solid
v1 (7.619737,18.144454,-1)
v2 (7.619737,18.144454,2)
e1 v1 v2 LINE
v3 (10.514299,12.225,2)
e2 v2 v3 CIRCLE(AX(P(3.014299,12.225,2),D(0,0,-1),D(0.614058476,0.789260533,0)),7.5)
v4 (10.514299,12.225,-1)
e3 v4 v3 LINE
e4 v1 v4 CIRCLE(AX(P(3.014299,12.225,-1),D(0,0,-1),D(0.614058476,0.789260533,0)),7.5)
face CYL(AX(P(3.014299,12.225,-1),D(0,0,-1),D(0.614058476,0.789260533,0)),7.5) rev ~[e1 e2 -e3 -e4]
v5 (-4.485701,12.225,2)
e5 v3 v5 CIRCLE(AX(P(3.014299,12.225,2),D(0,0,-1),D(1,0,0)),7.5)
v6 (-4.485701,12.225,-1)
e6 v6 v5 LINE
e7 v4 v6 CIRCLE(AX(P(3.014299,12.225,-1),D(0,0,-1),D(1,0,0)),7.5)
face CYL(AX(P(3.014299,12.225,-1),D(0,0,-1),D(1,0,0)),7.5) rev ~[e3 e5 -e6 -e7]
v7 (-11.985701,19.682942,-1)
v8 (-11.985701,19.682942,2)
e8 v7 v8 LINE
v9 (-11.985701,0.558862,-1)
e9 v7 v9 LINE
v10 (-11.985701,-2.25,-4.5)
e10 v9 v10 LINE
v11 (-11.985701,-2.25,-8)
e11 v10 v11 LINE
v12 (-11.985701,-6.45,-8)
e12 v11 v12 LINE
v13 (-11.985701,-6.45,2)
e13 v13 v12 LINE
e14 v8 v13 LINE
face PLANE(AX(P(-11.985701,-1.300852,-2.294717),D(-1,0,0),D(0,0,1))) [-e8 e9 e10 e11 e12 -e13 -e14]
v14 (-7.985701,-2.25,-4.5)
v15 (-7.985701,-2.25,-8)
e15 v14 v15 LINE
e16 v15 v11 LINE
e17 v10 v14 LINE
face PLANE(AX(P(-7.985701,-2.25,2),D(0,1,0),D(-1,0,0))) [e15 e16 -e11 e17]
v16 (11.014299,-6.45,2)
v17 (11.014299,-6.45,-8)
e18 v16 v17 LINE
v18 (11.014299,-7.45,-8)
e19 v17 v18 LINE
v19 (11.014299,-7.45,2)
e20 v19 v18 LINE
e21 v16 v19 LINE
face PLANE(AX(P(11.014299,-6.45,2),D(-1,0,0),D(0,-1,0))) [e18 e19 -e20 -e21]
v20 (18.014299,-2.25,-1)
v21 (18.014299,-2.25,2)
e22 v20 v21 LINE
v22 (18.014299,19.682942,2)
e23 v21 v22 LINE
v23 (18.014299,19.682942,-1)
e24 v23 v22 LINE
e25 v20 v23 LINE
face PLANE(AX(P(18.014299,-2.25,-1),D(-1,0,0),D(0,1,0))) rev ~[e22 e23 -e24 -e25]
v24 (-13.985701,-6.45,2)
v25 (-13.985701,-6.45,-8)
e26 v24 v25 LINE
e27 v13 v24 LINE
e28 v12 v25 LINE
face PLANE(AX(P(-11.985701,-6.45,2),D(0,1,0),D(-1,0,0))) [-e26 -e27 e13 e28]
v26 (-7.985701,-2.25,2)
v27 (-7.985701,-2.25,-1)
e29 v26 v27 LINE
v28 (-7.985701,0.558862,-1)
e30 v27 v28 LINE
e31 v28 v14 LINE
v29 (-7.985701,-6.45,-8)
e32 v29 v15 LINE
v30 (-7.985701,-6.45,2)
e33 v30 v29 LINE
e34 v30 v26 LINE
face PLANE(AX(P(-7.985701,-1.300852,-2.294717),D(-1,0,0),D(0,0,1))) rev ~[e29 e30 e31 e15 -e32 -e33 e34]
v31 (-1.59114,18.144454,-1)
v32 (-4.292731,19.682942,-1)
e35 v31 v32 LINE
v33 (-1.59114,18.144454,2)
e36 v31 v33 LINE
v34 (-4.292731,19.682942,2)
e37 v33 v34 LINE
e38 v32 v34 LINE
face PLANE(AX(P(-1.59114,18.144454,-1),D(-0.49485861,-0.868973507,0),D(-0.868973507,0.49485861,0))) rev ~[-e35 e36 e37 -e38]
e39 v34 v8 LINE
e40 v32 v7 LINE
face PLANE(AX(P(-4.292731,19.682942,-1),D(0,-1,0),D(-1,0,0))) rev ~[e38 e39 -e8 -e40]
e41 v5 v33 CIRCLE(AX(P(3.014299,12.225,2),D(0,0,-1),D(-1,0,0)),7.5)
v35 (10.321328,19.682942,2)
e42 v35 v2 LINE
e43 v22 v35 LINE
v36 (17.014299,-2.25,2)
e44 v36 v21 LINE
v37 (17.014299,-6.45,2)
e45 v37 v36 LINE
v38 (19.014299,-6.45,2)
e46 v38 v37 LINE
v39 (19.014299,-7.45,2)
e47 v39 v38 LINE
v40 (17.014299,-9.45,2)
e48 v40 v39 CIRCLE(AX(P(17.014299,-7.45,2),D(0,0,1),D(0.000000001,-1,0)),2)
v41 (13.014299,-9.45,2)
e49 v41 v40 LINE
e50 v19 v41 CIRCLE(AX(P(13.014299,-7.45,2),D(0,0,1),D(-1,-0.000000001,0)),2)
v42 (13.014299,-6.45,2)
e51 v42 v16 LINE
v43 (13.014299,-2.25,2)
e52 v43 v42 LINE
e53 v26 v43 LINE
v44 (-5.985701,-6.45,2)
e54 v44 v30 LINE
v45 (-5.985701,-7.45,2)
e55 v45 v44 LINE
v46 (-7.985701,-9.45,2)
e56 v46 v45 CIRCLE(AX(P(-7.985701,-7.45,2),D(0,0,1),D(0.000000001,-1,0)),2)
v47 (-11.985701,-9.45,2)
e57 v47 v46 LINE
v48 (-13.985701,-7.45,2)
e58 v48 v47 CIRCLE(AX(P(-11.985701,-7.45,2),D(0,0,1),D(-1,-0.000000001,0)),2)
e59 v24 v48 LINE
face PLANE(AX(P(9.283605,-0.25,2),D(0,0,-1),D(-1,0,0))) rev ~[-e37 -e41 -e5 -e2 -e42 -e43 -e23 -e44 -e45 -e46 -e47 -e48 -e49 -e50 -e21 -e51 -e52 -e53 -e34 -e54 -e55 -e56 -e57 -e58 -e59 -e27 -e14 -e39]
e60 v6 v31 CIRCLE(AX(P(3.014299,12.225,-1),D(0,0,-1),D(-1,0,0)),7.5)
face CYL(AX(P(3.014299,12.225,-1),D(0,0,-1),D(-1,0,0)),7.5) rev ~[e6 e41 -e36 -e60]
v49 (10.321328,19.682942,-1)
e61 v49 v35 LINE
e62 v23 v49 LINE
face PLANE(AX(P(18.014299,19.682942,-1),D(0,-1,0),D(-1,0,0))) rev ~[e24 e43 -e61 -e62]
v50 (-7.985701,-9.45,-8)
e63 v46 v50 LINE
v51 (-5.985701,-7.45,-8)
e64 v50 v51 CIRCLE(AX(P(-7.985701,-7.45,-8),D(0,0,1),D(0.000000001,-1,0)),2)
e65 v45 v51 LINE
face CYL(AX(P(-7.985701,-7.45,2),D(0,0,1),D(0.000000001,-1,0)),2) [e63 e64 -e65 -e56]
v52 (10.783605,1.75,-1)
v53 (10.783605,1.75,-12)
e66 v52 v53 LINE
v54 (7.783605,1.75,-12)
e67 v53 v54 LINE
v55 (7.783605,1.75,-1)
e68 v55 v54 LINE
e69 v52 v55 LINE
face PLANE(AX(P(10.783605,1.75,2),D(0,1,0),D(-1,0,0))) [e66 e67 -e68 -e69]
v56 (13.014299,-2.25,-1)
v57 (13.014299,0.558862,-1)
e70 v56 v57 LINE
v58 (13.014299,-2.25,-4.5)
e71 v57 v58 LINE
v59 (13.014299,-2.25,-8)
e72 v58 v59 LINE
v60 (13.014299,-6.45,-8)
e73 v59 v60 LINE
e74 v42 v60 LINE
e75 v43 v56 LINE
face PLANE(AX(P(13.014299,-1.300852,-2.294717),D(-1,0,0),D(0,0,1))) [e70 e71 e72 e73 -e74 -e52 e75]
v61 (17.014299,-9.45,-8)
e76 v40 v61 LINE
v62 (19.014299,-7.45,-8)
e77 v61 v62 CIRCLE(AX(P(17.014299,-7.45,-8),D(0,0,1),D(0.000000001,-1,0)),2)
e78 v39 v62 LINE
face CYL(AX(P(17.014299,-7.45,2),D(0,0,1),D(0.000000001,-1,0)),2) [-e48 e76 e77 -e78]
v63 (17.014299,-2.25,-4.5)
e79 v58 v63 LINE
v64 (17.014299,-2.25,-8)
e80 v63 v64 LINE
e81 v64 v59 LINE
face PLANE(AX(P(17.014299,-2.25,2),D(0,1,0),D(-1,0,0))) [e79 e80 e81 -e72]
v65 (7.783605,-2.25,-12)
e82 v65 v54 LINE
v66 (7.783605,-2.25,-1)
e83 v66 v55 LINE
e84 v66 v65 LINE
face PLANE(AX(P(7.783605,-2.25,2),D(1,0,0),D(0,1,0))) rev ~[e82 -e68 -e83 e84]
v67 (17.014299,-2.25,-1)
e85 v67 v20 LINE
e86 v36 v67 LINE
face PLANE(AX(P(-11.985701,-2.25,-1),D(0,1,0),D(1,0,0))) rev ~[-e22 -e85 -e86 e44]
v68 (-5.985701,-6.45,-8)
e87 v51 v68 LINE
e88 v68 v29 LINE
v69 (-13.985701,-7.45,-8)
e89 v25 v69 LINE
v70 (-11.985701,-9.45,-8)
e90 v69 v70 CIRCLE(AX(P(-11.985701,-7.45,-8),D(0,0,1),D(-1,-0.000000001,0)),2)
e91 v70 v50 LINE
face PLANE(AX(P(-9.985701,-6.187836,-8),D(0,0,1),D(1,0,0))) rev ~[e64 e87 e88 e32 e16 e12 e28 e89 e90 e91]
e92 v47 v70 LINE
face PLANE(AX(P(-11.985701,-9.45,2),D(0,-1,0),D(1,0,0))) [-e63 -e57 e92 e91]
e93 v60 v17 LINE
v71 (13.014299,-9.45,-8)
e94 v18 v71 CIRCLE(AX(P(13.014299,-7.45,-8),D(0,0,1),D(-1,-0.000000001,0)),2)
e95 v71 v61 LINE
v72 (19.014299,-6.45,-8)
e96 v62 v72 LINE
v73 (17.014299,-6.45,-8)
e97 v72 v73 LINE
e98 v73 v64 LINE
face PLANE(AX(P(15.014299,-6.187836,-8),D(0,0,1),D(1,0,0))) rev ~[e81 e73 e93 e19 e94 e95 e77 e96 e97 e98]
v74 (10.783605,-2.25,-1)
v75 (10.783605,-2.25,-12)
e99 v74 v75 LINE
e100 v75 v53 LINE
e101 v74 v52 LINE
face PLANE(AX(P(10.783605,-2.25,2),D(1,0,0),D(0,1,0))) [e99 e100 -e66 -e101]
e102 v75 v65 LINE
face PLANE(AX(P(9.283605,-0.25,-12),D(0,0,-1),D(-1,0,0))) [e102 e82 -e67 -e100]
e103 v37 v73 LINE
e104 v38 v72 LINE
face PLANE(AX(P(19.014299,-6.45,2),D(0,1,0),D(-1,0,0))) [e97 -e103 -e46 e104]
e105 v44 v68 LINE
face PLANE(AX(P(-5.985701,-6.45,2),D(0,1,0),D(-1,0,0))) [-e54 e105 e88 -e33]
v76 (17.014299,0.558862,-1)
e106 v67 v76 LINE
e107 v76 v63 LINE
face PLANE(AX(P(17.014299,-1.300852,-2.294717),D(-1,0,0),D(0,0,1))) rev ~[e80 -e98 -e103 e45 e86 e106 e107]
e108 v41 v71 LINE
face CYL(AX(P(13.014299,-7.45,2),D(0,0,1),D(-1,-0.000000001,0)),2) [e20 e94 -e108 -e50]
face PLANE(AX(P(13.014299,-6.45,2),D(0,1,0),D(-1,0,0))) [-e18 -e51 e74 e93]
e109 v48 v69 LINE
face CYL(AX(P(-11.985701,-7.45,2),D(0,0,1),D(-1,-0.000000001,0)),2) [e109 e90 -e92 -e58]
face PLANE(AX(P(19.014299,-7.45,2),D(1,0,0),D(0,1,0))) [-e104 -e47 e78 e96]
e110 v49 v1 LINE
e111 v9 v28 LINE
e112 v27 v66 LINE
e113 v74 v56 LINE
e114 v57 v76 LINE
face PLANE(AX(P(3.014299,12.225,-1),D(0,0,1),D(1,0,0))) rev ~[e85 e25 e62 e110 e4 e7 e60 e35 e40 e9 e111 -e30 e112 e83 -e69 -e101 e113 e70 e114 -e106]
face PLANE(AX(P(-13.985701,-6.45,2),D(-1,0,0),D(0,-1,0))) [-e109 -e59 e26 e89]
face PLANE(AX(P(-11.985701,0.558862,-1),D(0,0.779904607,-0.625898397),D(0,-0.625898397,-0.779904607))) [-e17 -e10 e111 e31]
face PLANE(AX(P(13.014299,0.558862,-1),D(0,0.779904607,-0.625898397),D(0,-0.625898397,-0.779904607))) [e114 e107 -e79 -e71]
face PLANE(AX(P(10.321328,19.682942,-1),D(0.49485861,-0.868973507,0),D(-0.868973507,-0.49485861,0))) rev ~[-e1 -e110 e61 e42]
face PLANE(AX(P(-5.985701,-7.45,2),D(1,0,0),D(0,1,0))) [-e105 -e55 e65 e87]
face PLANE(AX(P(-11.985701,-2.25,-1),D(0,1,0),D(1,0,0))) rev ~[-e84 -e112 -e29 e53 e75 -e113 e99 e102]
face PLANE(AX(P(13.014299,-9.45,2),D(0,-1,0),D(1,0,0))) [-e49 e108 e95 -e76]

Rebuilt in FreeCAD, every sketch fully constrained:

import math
import FreeCAD as App
import Part
import Sketcher

doc = App.newDocument("Part")
params = doc.addObject("Spreadsheet::Sheet", "Params")
for row, (alias, value) in enumerate([
    ("sketch1_width", "30 mm"),
    ("sketch1_height", "28.95 mm"),
    ("pad1_length", "2 mm"),
    ("pad1_length2", "1 mm"),
    ("sketch2_radius", "2 mm"),
    ("sketch2_width", "4 mm"),
    ("sketch2_height", "1 mm"),
    ("sketch2_height2", "4.2 mm"),
    ("pad2_length", "10 mm"),
    ("linearpattern_pitch", "25 mm"),
    ("sketch3_width", "3 mm"),
    ("sketch3_height", "4 mm"),
    ("pad3_length", "14 mm"),
    ("sketch4_height", "3.5 mm"),
    ("pad4_length", "4 mm"),
    ("linearpattern2_pitch", "25 mm"),
    ("sketch5_radius", "7.5 mm"),
    ("pocket1_length", "10 mm"),
], start=1):
    params.set(f"A{row}", alias)
    params.set(f"B{row}", "=" + value)
    params.setAlias(f"B{row}", alias)

body = doc.addObject("PartDesign::Body", "Body")

sketch1 = doc.addObject("Sketcher::SketchObject", "Sketch")
body.addObject(sketch1)
sketch1.AttachmentSupport = (doc.XY_Plane, [""])
sketch1.MapMode = "FlatFace"
sketch1.addGeometry(Part.LineSegment(App.Vector(18.014299, 26.7, 0), App.Vector(-11.985701, 26.7, 0)), False)
sketch1.addGeometry(Part.LineSegment(App.Vector(-11.985701, 26.7, 0), App.Vector(-11.985701, -2.25, 0)), False)
sketch1.addGeometry(Part.LineSegment(App.Vector(-11.985701, -2.25, 0), App.Vector(18.014299, -2.25, 0)), False)
sketch1.addGeometry(Part.LineSegment(App.Vector(18.014299, -2.25, 0), App.Vector(18.014299, 26.7, 0)), False)
sketch1.addConstraint(Sketcher.Constraint("Coincident", 0, 2, 1, 1))
sketch1.addConstraint(Sketcher.Constraint("Coincident", 1, 2, 2, 1))
sketch1.addConstraint(Sketcher.Constraint("Coincident", 2, 2, 3, 1))
sketch1.addConstraint(Sketcher.Constraint("Coincident", 3, 2, 0, 1))
sketch1.addConstraint(Sketcher.Constraint("Horizontal", 0))
sketch1.addConstraint(Sketcher.Constraint("Vertical", 1))
sketch1.addConstraint(Sketcher.Constraint("Horizontal", 2))
sketch1.addConstraint(Sketcher.Constraint("Vertical", 3))
sketch1.addConstraint(Sketcher.Constraint("DistanceX", 0, 2, 0, 1, 30.0))
sketch1.addConstraint(Sketcher.Constraint("DistanceY", 1, 2, 1, 1, 28.95))
sketch1.addConstraint(Sketcher.Constraint("DistanceY", -1, 1, 0, 2, 26.7))
sketch1.addConstraint(Sketcher.Constraint("DistanceX", 0, 2, -1, 1, 11.985701))
sketch1.setExpression("Constraints[8]", "Params.sketch1_width")
sketch1.setExpression("Constraints[9]", "Params.sketch1_height")
pad1 = doc.addObject("PartDesign::Pad", "Pad")
body.addObject(pad1)
pad1.Profile = sketch1
pad1.Type = "TwoLengths"
pad1.setExpression("Length", "Params.pad1_length")
pad1.setExpression("Length2", "Params.pad1_length2")

sketch2 = doc.addObject("Sketcher::SketchObject", "Sketch001")
body.addObject(sketch2)
sketch2.AttachmentSupport = (doc.XY_Plane, [""])
sketch2.MapMode = "FlatFace"
sketch2.AttachmentOffset = App.Placement(App.Vector(0, 0, 2), App.Rotation())
sketch2.addGeometry(Part.LineSegment(App.Vector(-5.985701, -6.45, 0), App.Vector(-7.985701, -6.45, 0)), False)
sketch2.addGeometry(Part.LineSegment(App.Vector(-7.985701, -6.45, 0), App.Vector(-7.985701, -2.25, 0)), False)
sketch2.addGeometry(Part.LineSegment(App.Vector(-7.985701, -2.25, 0), App.Vector(-11.985701, -2.25, 0)), False)
sketch2.addGeometry(Part.LineSegment(App.Vector(-11.985701, -2.25, 0), App.Vector(-11.985701, -6.45, 0)), False)
sketch2.addGeometry(Part.LineSegment(App.Vector(-11.985701, -6.45, 0), App.Vector(-13.985701, -6.45, 0)), False)
sketch2.addGeometry(Part.LineSegment(App.Vector(-13.985701, -6.45, 0), App.Vector(-13.985701, -7.45, 0)), False)
sketch2.addGeometry(Part.ArcOfCircle(Part.Circle(App.Vector(-11.985701, -7.45, 0), App.Vector(0, 0, 1), 2), math.radians(-180), math.radians(-90)), False)
sketch2.addGeometry(Part.LineSegment(App.Vector(-11.985701, -9.45, 0), App.Vector(-7.985701, -9.45, 0)), False)
sketch2.addGeometry(Part.ArcOfCircle(Part.Circle(App.Vector(-7.985701, -7.45, 0), App.Vector(0, 0, 1), 2), math.radians(-90), math.radians(0)), False)
sketch2.addGeometry(Part.LineSegment(App.Vector(-5.985701, -7.45, 0), App.Vector(-5.985701, -6.45, 0)), False)
sketch2.addConstraint(Sketcher.Constraint("Coincident", 0, 2, 1, 1))
sketch2.addConstraint(Sketcher.Constraint("Coincident", 1, 2, 2, 1))
sketch2.addConstraint(Sketcher.Constraint("Coincident", 2, 2, 3, 1))
sketch2.addConstraint(Sketcher.Constraint("Coincident", 3, 2, 4, 1))
sketch2.addConstraint(Sketcher.Constraint("Coincident", 4, 2, 5, 1))
sketch2.addConstraint(Sketcher.Constraint("Tangent", 5, 2, 6, 1))
sketch2.addConstraint(Sketcher.Constraint("Tangent", 6, 2, 7, 1))
sketch2.addConstraint(Sketcher.Constraint("Tangent", 7, 2, 8, 1))
sketch2.addConstraint(Sketcher.Constraint("Tangent", 8, 2, 9, 1))
sketch2.addConstraint(Sketcher.Constraint("Coincident", 9, 2, 0, 1))
sketch2.addConstraint(Sketcher.Constraint("Horizontal", 0))
sketch2.addConstraint(Sketcher.Constraint("Vertical", 1))
sketch2.addConstraint(Sketcher.Constraint("Horizontal", 2))
sketch2.addConstraint(Sketcher.Constraint("Vertical", 3))
sketch2.addConstraint(Sketcher.Constraint("Horizontal", 4))
sketch2.addConstraint(Sketcher.Constraint("Vertical", 5))
sketch2.addConstraint(Sketcher.Constraint("Horizontal", 7))
sketch2.addConstraint(Sketcher.Constraint("Vertical", 9))
sketch2.addConstraint(Sketcher.Constraint("Equal", 6, 8))
sketch2.addConstraint(Sketcher.Constraint("Horizontal", 0, 2, 3, 2))
sketch2.addConstraint(Sketcher.Constraint("Vertical", 8, 3, 0, 2))
sketch2.addConstraint(Sketcher.Constraint("Vertical", 6, 3, 2, 2))
sketch2.addConstraint(Sketcher.Constraint("Radius", 6, 2.0))
sketch2.addConstraint(Sketcher.Constraint("DistanceX", 2, 2, 2, 1, 4.0))
sketch2.addConstraint(Sketcher.Constraint("DistanceY", 5, 2, 5, 1, 1.0))
sketch2.addConstraint(Sketcher.Constraint("DistanceY", 1, 1, 1, 2, 4.2))
sketch2.addConstraint(Sketcher.Constraint("DistanceY", 6, 3, -1, 1, 7.45))
sketch2.addConstraint(Sketcher.Constraint("DistanceX", 6, 3, -1, 1, 11.985701))
sketch2.setExpression("Constraints[22]", "Params.sketch2_radius")
sketch2.setExpression("Constraints[23]", "Params.sketch2_width")
sketch2.setExpression("Constraints[24]", "Params.sketch2_height")
sketch2.setExpression("Constraints[25]", "Params.sketch2_height2")
pad2 = doc.addObject("PartDesign::Pad", "Pad001")
body.addObject(pad2)
pad2.Profile = sketch2
pad2.setExpression("Length", "Params.pad2_length")
pad2.Reversed = True
doc.recompute()

linearpattern = doc.addObject("PartDesign::LinearPattern", "LinearPattern")
body.addObject(linearpattern)
linearpattern.Originals = [pad2]
linearpattern.Direction = (doc.X_Axis, [""])
linearpattern.Mode = "offset"
linearpattern.setExpression("Offset", "Params.linearpattern_pitch")
linearpattern.Occurrences = 2
body.Tip = linearpattern

sketch3 = doc.addObject("Sketcher::SketchObject", "Sketch002")
body.addObject(sketch3)
sketch3.AttachmentSupport = (doc.XY_Plane, [""])
sketch3.MapMode = "FlatFace"
sketch3.AttachmentOffset = App.Placement(App.Vector(0, 0, 2), App.Rotation())
sketch3.addGeometry(Part.LineSegment(App.Vector(10.783605, 1.75, 0), App.Vector(10.783605, -2.25, 0)), False)
sketch3.addGeometry(Part.LineSegment(App.Vector(10.783605, -2.25, 0), App.Vector(7.783605, -2.25, 0)), False)
sketch3.addGeometry(Part.LineSegment(App.Vector(7.783605, -2.25, 0), App.Vector(7.783605, 1.75, 0)), False)
sketch3.addGeometry(Part.LineSegment(App.Vector(7.783605, 1.75, 0), App.Vector(10.783605, 1.75, 0)), False)
sketch3.addConstraint(Sketcher.Constraint("Coincident", 0, 2, 1, 1))
sketch3.addConstraint(Sketcher.Constraint("Coincident", 1, 2, 2, 1))
sketch3.addConstraint(Sketcher.Constraint("Coincident", 2, 2, 3, 1))
sketch3.addConstraint(Sketcher.Constraint("Coincident", 3, 2, 0, 1))
sketch3.addConstraint(Sketcher.Constraint("Vertical", 0))
sketch3.addConstraint(Sketcher.Constraint("Horizontal", 1))
sketch3.addConstraint(Sketcher.Constraint("Vertical", 2))
sketch3.addConstraint(Sketcher.Constraint("Horizontal", 3))
sketch3.addConstraint(Sketcher.Constraint("DistanceX", 1, 2, 1, 1, 3.0))
sketch3.addConstraint(Sketcher.Constraint("DistanceY", 0, 2, 0, 1, 4.0))
sketch3.addConstraint(Sketcher.Constraint("DistanceY", 0, 2, -1, 1, 2.25))
sketch3.addConstraint(Sketcher.Constraint("DistanceX", -1, 1, 0, 2, 10.783605))
sketch3.setExpression("Constraints[8]", "Params.sketch3_width")
sketch3.setExpression("Constraints[9]", "Params.sketch3_height")
pad3 = doc.addObject("PartDesign::Pad", "Pad002")
body.addObject(pad3)
pad3.Profile = sketch3
pad3.setExpression("Length", "Params.pad3_length")
pad3.Reversed = True

sketch4 = doc.addObject("Sketcher::SketchObject", "Sketch003")
body.addObject(sketch4)
sketch4.AttachmentSupport = (doc.YZ_Plane, [""])
sketch4.MapMode = "FlatFace"
sketch4.AttachmentOffset = App.Placement(App.Vector(0, 0, 13.014299), App.Rotation())
sketch4.addGeometry(Part.LineSegment(App.Vector(-2.25, -4.5, 0), App.Vector(-2.25, -1, 0)), False)
sketch4.addGeometry(Part.LineSegment(App.Vector(-2.25, -1, 0), App.Vector(0.558862, -1, 0)), False)
sketch4.addGeometry(Part.LineSegment(App.Vector(0.558862, -1, 0), App.Vector(-2.25, -4.5, 0)), False)
sketch4.addConstraint(Sketcher.Constraint("Coincident", 0, 2, 1, 1))
sketch4.addConstraint(Sketcher.Constraint("Coincident", 1, 2, 2, 1))
sketch4.addConstraint(Sketcher.Constraint("Coincident", 2, 2, 0, 1))
sketch4.addConstraint(Sketcher.Constraint("Vertical", 0))
sketch4.addConstraint(Sketcher.Constraint("Horizontal", 1))
sketch4.addConstraint(Sketcher.Constraint("DistanceY", 0, 1, 0, 2, 3.5))
sketch4.addConstraint(Sketcher.Constraint("DistanceY", 0, 2, -1, 1, 1.0))
sketch4.addConstraint(Sketcher.Constraint("DistanceX", 0, 2, -1, 1, 2.25))
sketch4.addConstraint(Sketcher.Constraint("DistanceX", 1, 1, 1, 2, 2.808862))
sketch4.setExpression("Constraints[5]", "Params.sketch4_height")
pad4 = doc.addObject("PartDesign::Pad", "Pad003")
body.addObject(pad4)
pad4.Profile = sketch4
pad4.setExpression("Length", "Params.pad4_length")
doc.recompute()

linearpattern2 = doc.addObject("PartDesign::LinearPattern", "LinearPattern001")
body.addObject(linearpattern2)
linearpattern2.Originals = [pad4]
linearpattern2.Direction = (doc.X_Axis, [""])
linearpattern2.Mode = "offset"
linearpattern2.setExpression("Offset", "Params.linearpattern2_pitch")
linearpattern2.Occurrences = 2
linearpattern2.Reversed = True
body.Tip = linearpattern2

sketch5 = doc.addObject("Sketcher::SketchObject", "Sketch004")
body.addObject(sketch5)
sketch5.AttachmentSupport = (doc.XY_Plane, [""])
sketch5.MapMode = "FlatFace"
sketch5.AttachmentOffset = App.Placement(App.Vector(0, 0, -1), App.Rotation())
sketch5.addGeometry(Part.LineSegment(App.Vector(10.321328, 19.682942, 0), App.Vector(7.619737, 18.144454, 0)), False)
sketch5.addGeometry(Part.ArcOfCircle(Part.Circle(App.Vector(3.014299, 12.225, 0), App.Vector(0, 0, 1), 7.5), math.radians(0), math.radians(52.116461)), False)
sketch5.addGeometry(Part.ArcOfCircle(Part.Circle(App.Vector(3.014299, 12.225, 0), App.Vector(0, 0, 1), 7.5), math.radians(180), math.radians(360)), False)
sketch5.addGeometry(Part.ArcOfCircle(Part.Circle(App.Vector(3.014299, 12.225, 0), App.Vector(0, 0, 1), 7.5), math.radians(127.883539), math.radians(180)), False)
sketch5.addGeometry(Part.LineSegment(App.Vector(-1.59114, 18.144454, 0), App.Vector(-4.292731, 19.682942, 0)), False)
sketch5.addGeometry(Part.LineSegment(App.Vector(-4.292731, 19.682942, 0), App.Vector(-13.385264, 19.682942, 0)), False)
sketch5.addGeometry(Part.LineSegment(App.Vector(-13.385264, 19.682942, 0), App.Vector(-19.56091, 30.423182, 0)), False)
sketch5.addGeometry(Part.LineSegment(App.Vector(-19.56091, 30.423182, 0), App.Vector(22.587954, 29.740095, 0)), False)
sketch5.addGeometry(Part.LineSegment(App.Vector(22.587954, 29.740095, 0), App.Vector(18.014299, 19.682942, 0)), False)
sketch5.addGeometry(Part.LineSegment(App.Vector(18.014299, 19.682942, 0), App.Vector(10.321328, 19.682942, 0)), False)
sketch5.addConstraint(Sketcher.Constraint("Coincident", 0, 2, 1, 2))
sketch5.addConstraint(Sketcher.Constraint("Tangent", 1, 1, 2, 2))
sketch5.addConstraint(Sketcher.Constraint("Tangent", 2, 1, 3, 2))
sketch5.addConstraint(Sketcher.Constraint("Coincident", 3, 1, 4, 1))
sketch5.addConstraint(Sketcher.Constraint("Coincident", 4, 2, 5, 1))
sketch5.addConstraint(Sketcher.Constraint("Coincident", 5, 2, 6, 1))
sketch5.addConstraint(Sketcher.Constraint("Coincident", 6, 2, 7, 1))
sketch5.addConstraint(Sketcher.Constraint("Coincident", 7, 2, 8, 1))
sketch5.addConstraint(Sketcher.Constraint("Coincident", 8, 2, 9, 1))
sketch5.addConstraint(Sketcher.Constraint("Coincident", 9, 2, 0, 1))
sketch5.addConstraint(Sketcher.Constraint("Horizontal", 5))
sketch5.addConstraint(Sketcher.Constraint("Horizontal", 9))
sketch5.addConstraint(Sketcher.Constraint("Equal", 1, 2))
sketch5.addConstraint(Sketcher.Constraint("Equal", 2, 3))
sketch5.addConstraint(Sketcher.Constraint("Horizontal", 3, 3, 1, 1))
sketch5.addConstraint(Sketcher.Constraint("Horizontal", 1, 1, 2, 1))
sketch5.addConstraint(Sketcher.Constraint("Horizontal", 0, 2, 3, 1))
sketch5.addConstraint(Sketcher.Constraint("Horizontal", 5, 2, 8, 2))
sketch5.addConstraint(Sketcher.Constraint("Equal", 0, 4))
sketch5.addConstraint(Sketcher.Constraint("Radius", 1, 7.5))
sketch5.addConstraint(Sketcher.Constraint("DistanceX", 3, 3, 8, 2, 15.0))
sketch5.addConstraint(Sketcher.Constraint("DistanceY", -1, 1, 1, 3, 12.225))
sketch5.addConstraint(Sketcher.Constraint("Distance", 7, 42.1544))
sketch5.addConstraint(Sketcher.Constraint("DistanceX", 9, 2, 9, 1, 7.692971))
sketch5.addConstraint(Sketcher.Constraint("DistanceX", -1, 1, 1, 3, 3.014299))
sketch5.addConstraint(Sketcher.Constraint("DistanceX", 5, 2, 5, 1, 9.092534))
sketch5.addConstraint(Sketcher.Constraint("DistanceX", 3, 1, -1, 1, 1.59114))
sketch5.addConstraint(Sketcher.Constraint("DistanceX", 6, 2, -1, 1, 19.56091))
sketch5.addConstraint(Sketcher.Constraint("DistanceY", -1, 1, 6, 2, 30.423182))
sketch5.addConstraint(Sketcher.Constraint("DistanceY", 3, 1, 4, 2, 1.538488))
sketch5.addConstraint(Sketcher.Constraint("DistanceY", 0, 2, 7, 2, 11.595641))
sketch5.setExpression("Constraints[19]", "Params.sketch5_radius")
pocket1 = doc.addObject("PartDesign::Pocket", "Pocket")
body.addObject(pocket1)
pocket1.Profile = sketch5
pocket1.setExpression("Length", "Params.pocket1_length")
pocket1.Reversed = True

doc.recompute()
